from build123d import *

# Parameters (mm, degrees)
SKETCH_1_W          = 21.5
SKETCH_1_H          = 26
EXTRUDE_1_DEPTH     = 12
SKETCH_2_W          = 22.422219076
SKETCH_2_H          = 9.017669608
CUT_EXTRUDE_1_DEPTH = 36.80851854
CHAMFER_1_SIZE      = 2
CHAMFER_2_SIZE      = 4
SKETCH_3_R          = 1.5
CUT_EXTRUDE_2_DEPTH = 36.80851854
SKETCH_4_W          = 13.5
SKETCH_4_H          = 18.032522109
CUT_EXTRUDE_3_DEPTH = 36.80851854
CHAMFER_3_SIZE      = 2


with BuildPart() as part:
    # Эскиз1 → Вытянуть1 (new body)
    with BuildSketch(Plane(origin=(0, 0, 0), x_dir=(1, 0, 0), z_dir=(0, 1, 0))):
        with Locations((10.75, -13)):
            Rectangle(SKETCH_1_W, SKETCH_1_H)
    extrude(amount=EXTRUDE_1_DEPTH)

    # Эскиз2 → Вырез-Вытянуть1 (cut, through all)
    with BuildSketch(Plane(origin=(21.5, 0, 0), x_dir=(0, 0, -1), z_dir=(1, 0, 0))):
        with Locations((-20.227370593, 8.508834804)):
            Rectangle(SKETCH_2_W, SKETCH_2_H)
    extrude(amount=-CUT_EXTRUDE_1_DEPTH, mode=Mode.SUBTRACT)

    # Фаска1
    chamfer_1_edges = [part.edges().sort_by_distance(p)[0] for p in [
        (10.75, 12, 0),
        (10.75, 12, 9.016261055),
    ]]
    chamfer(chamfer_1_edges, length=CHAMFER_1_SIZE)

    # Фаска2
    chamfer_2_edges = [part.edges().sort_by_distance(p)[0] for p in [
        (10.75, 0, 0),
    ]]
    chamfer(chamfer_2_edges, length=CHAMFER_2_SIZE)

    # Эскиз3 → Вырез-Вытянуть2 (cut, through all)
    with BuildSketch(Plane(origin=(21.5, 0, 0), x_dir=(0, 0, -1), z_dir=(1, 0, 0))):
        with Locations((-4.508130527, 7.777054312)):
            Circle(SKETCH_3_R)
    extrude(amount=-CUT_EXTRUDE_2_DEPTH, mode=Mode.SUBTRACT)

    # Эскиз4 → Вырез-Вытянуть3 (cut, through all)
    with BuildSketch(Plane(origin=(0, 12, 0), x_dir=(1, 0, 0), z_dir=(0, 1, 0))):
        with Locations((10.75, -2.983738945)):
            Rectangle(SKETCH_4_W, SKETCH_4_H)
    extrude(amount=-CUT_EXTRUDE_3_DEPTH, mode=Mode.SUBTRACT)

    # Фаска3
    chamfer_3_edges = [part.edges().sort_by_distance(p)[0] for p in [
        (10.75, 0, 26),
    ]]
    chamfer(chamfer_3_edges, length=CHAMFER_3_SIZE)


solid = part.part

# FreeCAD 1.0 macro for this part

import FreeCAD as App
import Part
import Sketcher


def edges_at(feature, points):
    """Names of the edges that pass closest to the given points."""
    edges = feature.Shape.Edges
    near = lambda p: min(range(len(edges)), key=lambda i: edges[i].distToShape(Part.Vertex(*p))[0])
    return sorted({f"Edge{near(p) + 1}" for p in points})

doc = App.newDocument("Part")
body = doc.addObject("PartDesign::Body", "Body")

# Sketch on XZ plane
sketch1 = body.newObject("Sketcher::SketchObject", "Sketch")
sketch1.AttachmentSupport = (doc.getObject("XZ_Plane"), [""])
sketch1.MapMode = "FlatFace"
sketch1.addGeometry(Part.LineSegment(App.Vector(0, 0, 0), App.Vector(0, 26, 0)), False)
sketch1.addGeometry(Part.LineSegment(App.Vector(0, 26, 0), App.Vector(21.5, 26, 0)), False)
sketch1.addGeometry(Part.LineSegment(App.Vector(21.5, 26, 0), App.Vector(21.5, 0, 0)), False)
sketch1.addGeometry(Part.LineSegment(App.Vector(21.5, 0, 0), App.Vector(0, 0, 0)), False)
sketch1.addConstraint(Sketcher.Constraint("Coincident", 0, 2, 1, 1))
sketch1.addConstraint(Sketcher.Constraint("Coincident", 1, 2, 2, 1))
sketch1.addConstraint(Sketcher.Constraint("Coincident", 2, 2, 3, 1))
sketch1.addConstraint(Sketcher.Constraint("Coincident", 3, 2, 0, 1))
sketch1.addConstraint(Sketcher.Constraint("Vertical", 0))
sketch1.addConstraint(Sketcher.Constraint("Horizontal", 1))
sketch1.addConstraint(Sketcher.Constraint("Vertical", 2))
sketch1.addConstraint(Sketcher.Constraint("Horizontal", 3))
sketch1.addConstraint(Sketcher.Constraint("Coincident", 3, 2, -1, 1))
sketch1.addConstraint(Sketcher.Constraint("DistanceY", 0, 1, 0, 2, 26.0))
sketch1.addConstraint(Sketcher.Constraint("DistanceX", 1, 1, 1, 2, 21.5))
pad1 = body.newObject("PartDesign::Pad", "Pad")
pad1.Profile = sketch1
pad1.Length = 12
pad1.Reversed = True

# Sketch on YZ plane
sketch2 = body.newObject("Sketcher::SketchObject", "Sketch001")
sketch2.AttachmentSupport = (doc.getObject("YZ_Plane"), [""])
sketch2.MapMode = "FlatFace"
sketch2.AttachmentOffset = App.Placement(App.Vector(0, 0, 21.5), App.Rotation())
sketch2.addGeometry(Part.LineSegment(App.Vector(13.01767, 31.43848, 0), App.Vector(4, 31.43848, 0)), False)
sketch2.addGeometry(Part.LineSegment(App.Vector(4, 31.43848, 0), App.Vector(4, 9.016261, 0)), False)
sketch2.addGeometry(Part.LineSegment(App.Vector(4, 9.016261, 0), App.Vector(13.01767, 9.016261, 0)), False)
sketch2.addGeometry(Part.LineSegment(App.Vector(13.01767, 9.016261, 0), App.Vector(13.01767, 31.43848, 0)), False)
sketch2.addConstraint(Sketcher.Constraint("Coincident", 0, 2, 1, 1))
sketch2.addConstraint(Sketcher.Constraint("Coincident", 1, 2, 2, 1))
sketch2.addConstraint(Sketcher.Constraint("Coincident", 2, 2, 3, 1))
sketch2.addConstraint(Sketcher.Constraint("Coincident", 3, 2, 0, 1))
sketch2.addConstraint(Sketcher.Constraint("Horizontal", 0))
sketch2.addConstraint(Sketcher.Constraint("Vertical", 1))
sketch2.addConstraint(Sketcher.Constraint("Horizontal", 2))
sketch2.addConstraint(Sketcher.Constraint("Vertical", 3))
sketch2.addConstraint(Sketcher.Constraint("DistanceX", -1, 1, 0, 2, 4.0))
sketch2.addConstraint(Sketcher.Constraint("DistanceX", 0, 2, 0, 1, 9.01767))
sketch2.addConstraint(Sketcher.Constraint("DistanceY", 1, 2, 1, 1, 22.422219))
sketch2.addConstraint(Sketcher.Constraint("DistanceY", -1, 1, 0, 2, 31.43848))
pocket1 = body.newObject("PartDesign::Pocket", "Pocket")
pocket1.Profile = sketch2
pocket1.Type = "ThroughAll"
doc.recompute()

chamfer = body.newObject("PartDesign::Chamfer", "Chamfer")
chamfer.Base = (pocket1, edges_at(pocket1, [(10.75, 12, 0), (10.75, 12, 9.016)]))
chamfer.Size = 2
doc.recompute()

chamfer2 = body.newObject("PartDesign::Chamfer", "Chamfer001")
chamfer2.Base = (chamfer, edges_at(chamfer, [(10.75, 0, 0)]))
chamfer2.Size = 4

# Sketch on YZ plane
sketch3 = body.newObject("Sketcher::SketchObject", "Sketch002")
sketch3.AttachmentSupport = (doc.getObject("YZ_Plane"), [""])
sketch3.MapMode = "FlatFace"
sketch3.AttachmentOffset = App.Placement(App.Vector(0, 0, 21.5), App.Rotation())
sketch3.addGeometry(Part.Circle(App.Vector(7.777054, 4.508131, 0), App.Vector(0, 0, 1), 1.5), False)
sketch3.addConstraint(Sketcher.Constraint("Diameter", 0, 3.0))
sketch3.addConstraint(Sketcher.Constraint("DistanceY", -1, 1, 0, 3, 4.508131))
sketch3.addConstraint(Sketcher.Constraint("DistanceX", -1, 1, 0, 3, 7.777054))
pocket2 = body.newObject("PartDesign::Pocket", "Pocket001")
pocket2.Profile = sketch3
pocket2.Type = "ThroughAll"

# Sketch on XZ plane
sketch4 = body.newObject("Sketcher::SketchObject", "Sketch003")
sketch4.AttachmentSupport = (doc.getObject("XZ_Plane"), [""])
sketch4.MapMode = "FlatFace"
sketch4.AttachmentOffset = App.Placement(App.Vector(0, 0, -12), App.Rotation())
sketch4.addGeometry(Part.LineSegment(App.Vector(4, -6.032522, 0), App.Vector(4, 12, 0)), False)
sketch4.addGeometry(Part.LineSegment(App.Vector(4, 12, 0), App.Vector(17.5, 12, 0)), False)
sketch4.addGeometry(Part.LineSegment(App.Vector(17.5, 12, 0), App.Vector(17.5, -6.032522, 0)), False)
sketch4.addGeometry(Part.LineSegment(App.Vector(17.5, -6.032522, 0), App.Vector(4, -6.032522, 0)), False)
sketch4.addConstraint(Sketcher.Constraint("Coincident", 0, 2, 1, 1))
sketch4.addConstraint(Sketcher.Constraint("Coincident", 1, 2, 2, 1))
sketch4.addConstraint(Sketcher.Constraint("Coincident", 2, 2, 3, 1))
sketch4.addConstraint(Sketcher.Constraint("Coincident", 3, 2, 0, 1))
sketch4.addConstraint(Sketcher.Constraint("Vertical", 0))
sketch4.addConstraint(Sketcher.Constraint("Horizontal", 1))
sketch4.addConstraint(Sketcher.Constraint("Vertical", 2))
sketch4.addConstraint(Sketcher.Constraint("Horizontal", 3))
sketch4.addConstraint(Sketcher.Constraint("DistanceX", 1, 1, 1, 2, 13.5))
sketch4.addConstraint(Sketcher.Constraint("DistanceX", -1, 1, 0, 2, 4.0))
sketch4.addConstraint(Sketcher.Constraint("DistanceY", -1, 1, 0, 2, 12.0))
sketch4.addConstraint(Sketcher.Constraint("DistanceY", 0, 1, 0, 2, 18.032522))
pocket3 = body.newObject("PartDesign::Pocket", "Pocket002")
pocket3.Profile = sketch4
pocket3.Type = "ThroughAll"
pocket3.Reversed = True
doc.recompute()

chamfer3 = body.newObject("PartDesign::Chamfer", "Chamfer002")
chamfer3.Base = (pocket3, edges_at(pocket3, [(10.75, 0, 26)]))
chamfer3.Size = 2

doc.recompute()
